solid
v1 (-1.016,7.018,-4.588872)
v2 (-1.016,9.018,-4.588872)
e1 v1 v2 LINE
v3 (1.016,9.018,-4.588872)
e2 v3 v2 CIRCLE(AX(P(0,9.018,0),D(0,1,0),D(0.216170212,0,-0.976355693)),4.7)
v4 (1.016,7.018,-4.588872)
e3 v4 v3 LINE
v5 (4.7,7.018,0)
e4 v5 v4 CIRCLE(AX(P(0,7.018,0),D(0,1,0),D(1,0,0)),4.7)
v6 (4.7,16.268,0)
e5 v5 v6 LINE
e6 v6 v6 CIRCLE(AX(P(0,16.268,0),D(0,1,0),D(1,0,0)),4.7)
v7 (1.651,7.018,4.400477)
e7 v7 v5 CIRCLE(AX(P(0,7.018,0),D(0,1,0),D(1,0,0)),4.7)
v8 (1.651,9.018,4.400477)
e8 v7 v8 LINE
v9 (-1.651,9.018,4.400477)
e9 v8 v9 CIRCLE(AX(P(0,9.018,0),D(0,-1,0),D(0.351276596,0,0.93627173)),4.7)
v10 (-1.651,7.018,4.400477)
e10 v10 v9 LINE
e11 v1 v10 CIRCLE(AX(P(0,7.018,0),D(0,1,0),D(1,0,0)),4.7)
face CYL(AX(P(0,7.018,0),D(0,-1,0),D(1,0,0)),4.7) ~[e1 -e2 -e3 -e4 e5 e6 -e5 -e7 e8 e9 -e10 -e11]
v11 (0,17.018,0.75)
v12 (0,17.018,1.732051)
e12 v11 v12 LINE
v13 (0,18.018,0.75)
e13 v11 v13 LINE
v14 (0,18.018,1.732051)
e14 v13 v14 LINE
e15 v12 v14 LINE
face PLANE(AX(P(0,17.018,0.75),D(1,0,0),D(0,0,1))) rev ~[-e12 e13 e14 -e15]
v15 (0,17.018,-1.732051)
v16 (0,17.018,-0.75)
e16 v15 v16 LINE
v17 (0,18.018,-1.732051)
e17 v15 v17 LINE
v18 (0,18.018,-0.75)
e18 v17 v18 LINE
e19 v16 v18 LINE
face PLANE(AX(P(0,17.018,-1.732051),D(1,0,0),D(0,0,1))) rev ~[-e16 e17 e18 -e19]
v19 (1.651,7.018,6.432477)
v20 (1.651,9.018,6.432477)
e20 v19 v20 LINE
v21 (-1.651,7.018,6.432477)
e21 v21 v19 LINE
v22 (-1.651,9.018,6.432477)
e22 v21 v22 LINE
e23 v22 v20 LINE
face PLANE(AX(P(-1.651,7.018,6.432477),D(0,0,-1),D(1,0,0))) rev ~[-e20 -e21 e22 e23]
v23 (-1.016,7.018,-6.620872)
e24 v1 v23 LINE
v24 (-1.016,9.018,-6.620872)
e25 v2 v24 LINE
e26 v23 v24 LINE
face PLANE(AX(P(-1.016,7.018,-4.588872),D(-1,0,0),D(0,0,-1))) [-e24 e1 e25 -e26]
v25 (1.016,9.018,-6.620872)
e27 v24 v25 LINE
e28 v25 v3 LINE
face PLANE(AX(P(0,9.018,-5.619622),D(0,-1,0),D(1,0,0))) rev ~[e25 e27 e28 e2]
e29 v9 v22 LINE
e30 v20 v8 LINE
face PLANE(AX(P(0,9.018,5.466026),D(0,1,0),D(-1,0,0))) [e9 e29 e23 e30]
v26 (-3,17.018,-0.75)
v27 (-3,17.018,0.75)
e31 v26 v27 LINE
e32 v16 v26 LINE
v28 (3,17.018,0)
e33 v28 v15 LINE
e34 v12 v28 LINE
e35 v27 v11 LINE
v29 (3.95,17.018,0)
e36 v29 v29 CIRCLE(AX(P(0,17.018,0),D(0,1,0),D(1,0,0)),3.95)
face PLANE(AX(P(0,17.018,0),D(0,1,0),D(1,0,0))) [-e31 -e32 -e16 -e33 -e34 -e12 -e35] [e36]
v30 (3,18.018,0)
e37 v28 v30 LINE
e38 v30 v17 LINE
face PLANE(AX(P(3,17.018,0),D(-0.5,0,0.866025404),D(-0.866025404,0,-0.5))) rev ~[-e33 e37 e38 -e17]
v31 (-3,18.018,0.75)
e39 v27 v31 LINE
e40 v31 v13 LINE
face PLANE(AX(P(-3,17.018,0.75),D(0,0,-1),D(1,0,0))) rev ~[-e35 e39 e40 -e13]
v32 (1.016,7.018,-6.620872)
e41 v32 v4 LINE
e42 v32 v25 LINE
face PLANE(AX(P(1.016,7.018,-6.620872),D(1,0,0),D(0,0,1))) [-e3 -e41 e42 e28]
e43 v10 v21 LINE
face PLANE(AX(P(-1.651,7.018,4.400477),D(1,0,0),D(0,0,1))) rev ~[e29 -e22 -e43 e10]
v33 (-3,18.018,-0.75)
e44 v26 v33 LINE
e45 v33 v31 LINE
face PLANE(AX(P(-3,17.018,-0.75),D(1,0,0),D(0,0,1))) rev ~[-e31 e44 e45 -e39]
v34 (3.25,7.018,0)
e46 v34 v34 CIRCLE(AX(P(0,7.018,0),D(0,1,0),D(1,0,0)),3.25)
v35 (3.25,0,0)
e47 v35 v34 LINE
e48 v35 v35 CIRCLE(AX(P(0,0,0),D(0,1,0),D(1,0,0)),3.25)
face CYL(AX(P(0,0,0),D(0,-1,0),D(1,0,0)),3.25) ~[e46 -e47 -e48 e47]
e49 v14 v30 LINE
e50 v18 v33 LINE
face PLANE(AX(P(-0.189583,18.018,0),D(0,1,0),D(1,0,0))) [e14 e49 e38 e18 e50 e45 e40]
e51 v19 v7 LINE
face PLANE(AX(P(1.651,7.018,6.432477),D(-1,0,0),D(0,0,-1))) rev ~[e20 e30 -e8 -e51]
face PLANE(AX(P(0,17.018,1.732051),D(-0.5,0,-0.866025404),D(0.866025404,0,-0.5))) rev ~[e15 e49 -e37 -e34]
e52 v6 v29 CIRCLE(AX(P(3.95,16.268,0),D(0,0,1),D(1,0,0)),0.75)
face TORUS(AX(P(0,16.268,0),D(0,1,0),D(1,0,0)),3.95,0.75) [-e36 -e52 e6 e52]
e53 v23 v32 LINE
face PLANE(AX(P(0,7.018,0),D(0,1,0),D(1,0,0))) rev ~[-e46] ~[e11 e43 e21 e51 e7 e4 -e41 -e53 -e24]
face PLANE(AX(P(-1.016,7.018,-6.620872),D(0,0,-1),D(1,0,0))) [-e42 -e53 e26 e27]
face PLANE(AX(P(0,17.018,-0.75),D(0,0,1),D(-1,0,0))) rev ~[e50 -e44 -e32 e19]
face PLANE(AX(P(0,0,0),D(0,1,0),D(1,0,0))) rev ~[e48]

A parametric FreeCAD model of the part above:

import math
import FreeCAD as App
import Part
import Sketcher
from FreeCAD import Vector
Q = App.Units.Quantity


def edges_at(feature, points):
    """Names of the edges that pass closest to the given points."""
    edges = feature.Shape.Edges
    near = lambda p: min(range(len(edges)), key=lambda i: edges[i].distToShape(Part.Vertex(*p))[0])
    return sorted({f"Edge{near(p) + 1}" for p in points})


def add_polygon(sketch, points):
    """Adds a closed chain of lines whose ends are joined by coincident constraints."""
    first, n = sketch.GeometryCount, len(points)
    for a, b in zip(points, points[1:] + points[:1]):
        sketch.addGeometry(Part.LineSegment(App.Vector(*a, 0), App.Vector(*b, 0)), False)
    for i in range(n):
        sketch.addConstraint(Sketcher.Constraint("Coincident", first + i, 2, first + (i + 1) % n, 1))

doc = App.newDocument("Part")
params = doc.addObject("Spreadsheet::Sheet", "Params")
for row, (alias, value) in enumerate([
    ("sketch1_diameter", "6.5 mm"),
    ("pad1_length", "7.018 mm"),
    ("sketch2_diameter", "9.4 mm"),
    ("pad2_length", "10 mm"),
    ("fillet_radius", "0.75 mm"),
    ("sketch3_width", "3 mm"),
    ("sketch3_height", "1.5 mm"),
    ("pad3_length", "1 mm"),
    ("sketch4_radius", "4.7 mm"),
    ("pad4_length", "2 mm"),
], start=1):
    params.set(f"A{row}", alias)
    params.set(f"B{row}", "=" + value)
    params.setAlias(f"B{row}", alias)

body = doc.addObject("PartDesign::Body", "Body")

# Sketch on XZ plane
sketch1 = body.newObject("Sketcher::SketchObject", "Sketch")
sketch1.AttachmentSupport = (doc.getObject("XZ_Plane"), [""])
sketch1.MapMode = "FlatFace"
sketch1.addGeometry(Part.Circle(Vector(0, 0, 0), Vector(0, 0, 1), 3.2), False)
sketch1.addConstraint(Sketcher.Constraint("Coincident", 0, 3, -1, 1))
sketch1.addConstraint(Sketcher.Constraint("Diameter", 0, 6.5))
sketch1.setExpression("Constraints[1]", "Params.sketch1_diameter")
pad1 = body.newObject("PartDesign::Pad", "Pad")
pad1.Profile = sketch1
pad1.setExpression("Length", "Params.pad1_length")
pad1.Reversed = True

# Sketch on XZ plane
sketch2 = body.newObject("Sketcher::SketchObject", "Sketch001")
sketch2.AttachmentSupport = (doc.getObject("XZ_Plane"), [""])
sketch2.MapMode = "FlatFace"
sketch2.AttachmentOffset = App.Placement(Vector(0, 0, -7.018), App.Rotation())
sketch2.addGeometry(Part.Circle(Vector(0, 0, 0), Vector(0, 0, 1), 4.7), False)
sketch2.addConstraint(Sketcher.Constraint("Coincident", 0, 3, -1, 1))
sketch2.addConstraint(Sketcher.Constraint("Diameter", 0, 9.4))
sketch2.setExpression("Constraints[1]", "Params.sketch2_diameter")
pad2 = body.newObject("PartDesign::Pad", "Pad001")
pad2.Profile = sketch2
pad2.setExpression("Length", "Params.pad2_length")
pad2.Reversed = True
doc.recompute()

fillet = body.newObject("PartDesign::Fillet", "Fillet")
fillet.Base = (pad2, edges_at(pad2, [(-4.7, 17.018, 0)]))
fillet.setExpression("Radius", "Params.fillet_radius")

# Sketch on XZ plane
sketch3 = body.newObject("Sketcher::SketchObject", "Sketch002")
sketch3.AttachmentSupport = (doc.getObject("XZ_Plane"), [""])
sketch3.MapMode = "FlatFace"
sketch3.AttachmentOffset = App.Placement(Vector(0, 0, -17.018), App.Rotation())
add_polygon(sketch3, [(0, -0.8), (-3, -0.8), (-3, 0.8), (0, 0.8), (0, 1.7), (3, 0), (0, -1.7)])  # lines 0-6
sketch3.addConstraint(Sketcher.Constraint("Horizontal", 0))
sketch3.addConstraint(Sketcher.Constraint("Vertical", 1))
sketch3.addConstraint(Sketcher.Constraint("Horizontal", 2))
sketch3.addConstraint(Sketcher.Constraint("Vertical", 3))
sketch3.addConstraint(Sketcher.Constraint("Vertical", 6))
sketch3.addConstraint(Sketcher.Constraint("Symmetric", 3, 2, 5, 2, -1, 1))
sketch3.addConstraint(Sketcher.Constraint("Symmetric", 2, 2, 6, 2, -1))
sketch3.addConstraint(Sketcher.Constraint("PointOnObject", 4, 2, -1))
sketch3.addConstraint(Sketcher.Constraint("DistanceX", 0, 2, 0, 1, 3.0))
sketch3.addConstraint(Sketcher.Constraint("Angle", 4, Q("-30 deg")))
sketch3.addConstraint(Sketcher.Constraint("DistanceY", 1, 1, 1, 2, 1.5))
sketch3.addConstraint(Sketcher.Constraint("DistanceX", -1, 1, 4, 2, 3.0))
sketch3.setExpression("Constraints[15]", "Params.sketch3_width")
sketch3.setExpression("Constraints[17]", "Params.sketch3_height")
pad3 = body.newObject("PartDesign::Pad", "Pad002")
pad3.Profile = sketch3
pad3.setExpression("Length", "Params.pad3_length")
pad3.Reversed = True

# Sketch on XZ plane
sketch4 = body.newObject("Sketcher::SketchObject", "Sketch003")
sketch4.AttachmentSupport = (doc.getObject("XZ_Plane"), [""])
sketch4.MapMode = "FlatFace"
sketch4.AttachmentOffset = App.Placement(Vector(0, 0, -7.018), App.Rotation())
sketch4.addGeometry(Part.LineSegment(Vector(-1.7, 6.4, 0), Vector(-1.7, 4.4, 0)), False)
sketch4.addGeometry(Part.ArcOfCircle(Part.Circle(Vector(0, 0, 0), Vector(0, 0, 1), 4.7), math.radians(69), math.radians(111)), False)
sketch4.addGeometry(Part.LineSegment(Vector(1.7, 4.4, 0), Vector(1.7, 6.4, 0)), False)
sketch4.addGeometry(Part.LineSegment(Vector(1.7, 6.4, 0), Vector(-1.7, 6.4, 0)), False)
sketch4.addGeometry(Part.LineSegment(Vector(-1, -4.6, 0), Vector(-1, -6.6, 0)), False)
sketch4.addGeometry(Part.LineSegment(Vector(-1, -6.6, 0), Vector(1, -6.6, 0)), False)
sketch4.addGeometry(Part.LineSegment(Vector(1, -6.6, 0), Vector(1, -4.6, 0)), False)
sketch4.addGeometry(Part.ArcOfCircle(Part.Circle(Vector(0, 0, 0), Vector(0, 0, 1), 4.7), math.radians(-102), math.radians(-78)), False)
sketch4.addConstraint(Sketcher.Constraint("Coincident", 0, 2, 1, 2))
sketch4.addConstraint(Sketcher.Constraint("Coincident", 1, 1, 2, 1))
sketch4.addConstraint(Sketcher.Constraint("Coincident", 2, 2, 3, 1))
sketch4.addConstraint(Sketcher.Constraint("Coincident", 3, 2, 0, 1))
sketch4.addConstraint(Sketcher.Constraint("Coincident", 4, 2, 5, 1))
sketch4.addConstraint(Sketcher.Constraint("Coincident", 5, 2, 6, 1))
sketch4.addConstraint(Sketcher.Constraint("Coincident", 6, 2, 7, 2))
sketch4.addConstraint(Sketcher.Constraint("Coincident", 7, 1, 4, 1))
sketch4.addConstraint(Sketcher.Constraint("Vertical", 0))
sketch4.addConstraint(Sketcher.Constraint("Vertical", 2))
sketch4.addConstraint(Sketcher.Constraint("Horizontal", 3))
sketch4.addConstraint(Sketcher.Constraint("Vertical", 4))
sketch4.addConstraint(Sketcher.Constraint("Horizontal", 5))
sketch4.addConstraint(Sketcher.Constraint("Vertical", 6))
sketch4.addConstraint(Sketcher.Constraint("Coincident", 1, 3, -1, 1))
sketch4.addConstraint(Sketcher.Constraint("Coincident", 7, 3, -1, 1))
sketch4.addConstraint(Sketcher.Constraint("Equal", 1, 7))
sketch4.addConstraint(Sketcher.Constraint("Horizontal", 0, 2, 1, 1))
sketch4.addConstraint(Sketcher.Constraint("Horizontal", 6, 2, 7, 1))
sketch4.addConstraint(Sketcher.Constraint("Equal", 5, 0))
sketch4.addConstraint(Sketcher.Constraint("Equal", 2, 4))
sketch4.addConstraint(Sketcher.Constraint("Radius", 1, 4.7))
sketch4.addConstraint(Sketcher.Constraint("DistanceX", 3, 2, 3, 1, 3.302))
sketch4.addConstraint(Sketcher.Constraint("DistanceX", 5, 1, 5, 2, 2.032))
sketch4.setExpression("Constraints[21]", "Params.sketch4_radius")
pad4 = body.newObject("PartDesign::Pad", "Pad003")
pad4.Profile = sketch4
pad4.setExpression("Length", "Params.pad4_length")
pad4.Reversed = True

doc.recompute()
